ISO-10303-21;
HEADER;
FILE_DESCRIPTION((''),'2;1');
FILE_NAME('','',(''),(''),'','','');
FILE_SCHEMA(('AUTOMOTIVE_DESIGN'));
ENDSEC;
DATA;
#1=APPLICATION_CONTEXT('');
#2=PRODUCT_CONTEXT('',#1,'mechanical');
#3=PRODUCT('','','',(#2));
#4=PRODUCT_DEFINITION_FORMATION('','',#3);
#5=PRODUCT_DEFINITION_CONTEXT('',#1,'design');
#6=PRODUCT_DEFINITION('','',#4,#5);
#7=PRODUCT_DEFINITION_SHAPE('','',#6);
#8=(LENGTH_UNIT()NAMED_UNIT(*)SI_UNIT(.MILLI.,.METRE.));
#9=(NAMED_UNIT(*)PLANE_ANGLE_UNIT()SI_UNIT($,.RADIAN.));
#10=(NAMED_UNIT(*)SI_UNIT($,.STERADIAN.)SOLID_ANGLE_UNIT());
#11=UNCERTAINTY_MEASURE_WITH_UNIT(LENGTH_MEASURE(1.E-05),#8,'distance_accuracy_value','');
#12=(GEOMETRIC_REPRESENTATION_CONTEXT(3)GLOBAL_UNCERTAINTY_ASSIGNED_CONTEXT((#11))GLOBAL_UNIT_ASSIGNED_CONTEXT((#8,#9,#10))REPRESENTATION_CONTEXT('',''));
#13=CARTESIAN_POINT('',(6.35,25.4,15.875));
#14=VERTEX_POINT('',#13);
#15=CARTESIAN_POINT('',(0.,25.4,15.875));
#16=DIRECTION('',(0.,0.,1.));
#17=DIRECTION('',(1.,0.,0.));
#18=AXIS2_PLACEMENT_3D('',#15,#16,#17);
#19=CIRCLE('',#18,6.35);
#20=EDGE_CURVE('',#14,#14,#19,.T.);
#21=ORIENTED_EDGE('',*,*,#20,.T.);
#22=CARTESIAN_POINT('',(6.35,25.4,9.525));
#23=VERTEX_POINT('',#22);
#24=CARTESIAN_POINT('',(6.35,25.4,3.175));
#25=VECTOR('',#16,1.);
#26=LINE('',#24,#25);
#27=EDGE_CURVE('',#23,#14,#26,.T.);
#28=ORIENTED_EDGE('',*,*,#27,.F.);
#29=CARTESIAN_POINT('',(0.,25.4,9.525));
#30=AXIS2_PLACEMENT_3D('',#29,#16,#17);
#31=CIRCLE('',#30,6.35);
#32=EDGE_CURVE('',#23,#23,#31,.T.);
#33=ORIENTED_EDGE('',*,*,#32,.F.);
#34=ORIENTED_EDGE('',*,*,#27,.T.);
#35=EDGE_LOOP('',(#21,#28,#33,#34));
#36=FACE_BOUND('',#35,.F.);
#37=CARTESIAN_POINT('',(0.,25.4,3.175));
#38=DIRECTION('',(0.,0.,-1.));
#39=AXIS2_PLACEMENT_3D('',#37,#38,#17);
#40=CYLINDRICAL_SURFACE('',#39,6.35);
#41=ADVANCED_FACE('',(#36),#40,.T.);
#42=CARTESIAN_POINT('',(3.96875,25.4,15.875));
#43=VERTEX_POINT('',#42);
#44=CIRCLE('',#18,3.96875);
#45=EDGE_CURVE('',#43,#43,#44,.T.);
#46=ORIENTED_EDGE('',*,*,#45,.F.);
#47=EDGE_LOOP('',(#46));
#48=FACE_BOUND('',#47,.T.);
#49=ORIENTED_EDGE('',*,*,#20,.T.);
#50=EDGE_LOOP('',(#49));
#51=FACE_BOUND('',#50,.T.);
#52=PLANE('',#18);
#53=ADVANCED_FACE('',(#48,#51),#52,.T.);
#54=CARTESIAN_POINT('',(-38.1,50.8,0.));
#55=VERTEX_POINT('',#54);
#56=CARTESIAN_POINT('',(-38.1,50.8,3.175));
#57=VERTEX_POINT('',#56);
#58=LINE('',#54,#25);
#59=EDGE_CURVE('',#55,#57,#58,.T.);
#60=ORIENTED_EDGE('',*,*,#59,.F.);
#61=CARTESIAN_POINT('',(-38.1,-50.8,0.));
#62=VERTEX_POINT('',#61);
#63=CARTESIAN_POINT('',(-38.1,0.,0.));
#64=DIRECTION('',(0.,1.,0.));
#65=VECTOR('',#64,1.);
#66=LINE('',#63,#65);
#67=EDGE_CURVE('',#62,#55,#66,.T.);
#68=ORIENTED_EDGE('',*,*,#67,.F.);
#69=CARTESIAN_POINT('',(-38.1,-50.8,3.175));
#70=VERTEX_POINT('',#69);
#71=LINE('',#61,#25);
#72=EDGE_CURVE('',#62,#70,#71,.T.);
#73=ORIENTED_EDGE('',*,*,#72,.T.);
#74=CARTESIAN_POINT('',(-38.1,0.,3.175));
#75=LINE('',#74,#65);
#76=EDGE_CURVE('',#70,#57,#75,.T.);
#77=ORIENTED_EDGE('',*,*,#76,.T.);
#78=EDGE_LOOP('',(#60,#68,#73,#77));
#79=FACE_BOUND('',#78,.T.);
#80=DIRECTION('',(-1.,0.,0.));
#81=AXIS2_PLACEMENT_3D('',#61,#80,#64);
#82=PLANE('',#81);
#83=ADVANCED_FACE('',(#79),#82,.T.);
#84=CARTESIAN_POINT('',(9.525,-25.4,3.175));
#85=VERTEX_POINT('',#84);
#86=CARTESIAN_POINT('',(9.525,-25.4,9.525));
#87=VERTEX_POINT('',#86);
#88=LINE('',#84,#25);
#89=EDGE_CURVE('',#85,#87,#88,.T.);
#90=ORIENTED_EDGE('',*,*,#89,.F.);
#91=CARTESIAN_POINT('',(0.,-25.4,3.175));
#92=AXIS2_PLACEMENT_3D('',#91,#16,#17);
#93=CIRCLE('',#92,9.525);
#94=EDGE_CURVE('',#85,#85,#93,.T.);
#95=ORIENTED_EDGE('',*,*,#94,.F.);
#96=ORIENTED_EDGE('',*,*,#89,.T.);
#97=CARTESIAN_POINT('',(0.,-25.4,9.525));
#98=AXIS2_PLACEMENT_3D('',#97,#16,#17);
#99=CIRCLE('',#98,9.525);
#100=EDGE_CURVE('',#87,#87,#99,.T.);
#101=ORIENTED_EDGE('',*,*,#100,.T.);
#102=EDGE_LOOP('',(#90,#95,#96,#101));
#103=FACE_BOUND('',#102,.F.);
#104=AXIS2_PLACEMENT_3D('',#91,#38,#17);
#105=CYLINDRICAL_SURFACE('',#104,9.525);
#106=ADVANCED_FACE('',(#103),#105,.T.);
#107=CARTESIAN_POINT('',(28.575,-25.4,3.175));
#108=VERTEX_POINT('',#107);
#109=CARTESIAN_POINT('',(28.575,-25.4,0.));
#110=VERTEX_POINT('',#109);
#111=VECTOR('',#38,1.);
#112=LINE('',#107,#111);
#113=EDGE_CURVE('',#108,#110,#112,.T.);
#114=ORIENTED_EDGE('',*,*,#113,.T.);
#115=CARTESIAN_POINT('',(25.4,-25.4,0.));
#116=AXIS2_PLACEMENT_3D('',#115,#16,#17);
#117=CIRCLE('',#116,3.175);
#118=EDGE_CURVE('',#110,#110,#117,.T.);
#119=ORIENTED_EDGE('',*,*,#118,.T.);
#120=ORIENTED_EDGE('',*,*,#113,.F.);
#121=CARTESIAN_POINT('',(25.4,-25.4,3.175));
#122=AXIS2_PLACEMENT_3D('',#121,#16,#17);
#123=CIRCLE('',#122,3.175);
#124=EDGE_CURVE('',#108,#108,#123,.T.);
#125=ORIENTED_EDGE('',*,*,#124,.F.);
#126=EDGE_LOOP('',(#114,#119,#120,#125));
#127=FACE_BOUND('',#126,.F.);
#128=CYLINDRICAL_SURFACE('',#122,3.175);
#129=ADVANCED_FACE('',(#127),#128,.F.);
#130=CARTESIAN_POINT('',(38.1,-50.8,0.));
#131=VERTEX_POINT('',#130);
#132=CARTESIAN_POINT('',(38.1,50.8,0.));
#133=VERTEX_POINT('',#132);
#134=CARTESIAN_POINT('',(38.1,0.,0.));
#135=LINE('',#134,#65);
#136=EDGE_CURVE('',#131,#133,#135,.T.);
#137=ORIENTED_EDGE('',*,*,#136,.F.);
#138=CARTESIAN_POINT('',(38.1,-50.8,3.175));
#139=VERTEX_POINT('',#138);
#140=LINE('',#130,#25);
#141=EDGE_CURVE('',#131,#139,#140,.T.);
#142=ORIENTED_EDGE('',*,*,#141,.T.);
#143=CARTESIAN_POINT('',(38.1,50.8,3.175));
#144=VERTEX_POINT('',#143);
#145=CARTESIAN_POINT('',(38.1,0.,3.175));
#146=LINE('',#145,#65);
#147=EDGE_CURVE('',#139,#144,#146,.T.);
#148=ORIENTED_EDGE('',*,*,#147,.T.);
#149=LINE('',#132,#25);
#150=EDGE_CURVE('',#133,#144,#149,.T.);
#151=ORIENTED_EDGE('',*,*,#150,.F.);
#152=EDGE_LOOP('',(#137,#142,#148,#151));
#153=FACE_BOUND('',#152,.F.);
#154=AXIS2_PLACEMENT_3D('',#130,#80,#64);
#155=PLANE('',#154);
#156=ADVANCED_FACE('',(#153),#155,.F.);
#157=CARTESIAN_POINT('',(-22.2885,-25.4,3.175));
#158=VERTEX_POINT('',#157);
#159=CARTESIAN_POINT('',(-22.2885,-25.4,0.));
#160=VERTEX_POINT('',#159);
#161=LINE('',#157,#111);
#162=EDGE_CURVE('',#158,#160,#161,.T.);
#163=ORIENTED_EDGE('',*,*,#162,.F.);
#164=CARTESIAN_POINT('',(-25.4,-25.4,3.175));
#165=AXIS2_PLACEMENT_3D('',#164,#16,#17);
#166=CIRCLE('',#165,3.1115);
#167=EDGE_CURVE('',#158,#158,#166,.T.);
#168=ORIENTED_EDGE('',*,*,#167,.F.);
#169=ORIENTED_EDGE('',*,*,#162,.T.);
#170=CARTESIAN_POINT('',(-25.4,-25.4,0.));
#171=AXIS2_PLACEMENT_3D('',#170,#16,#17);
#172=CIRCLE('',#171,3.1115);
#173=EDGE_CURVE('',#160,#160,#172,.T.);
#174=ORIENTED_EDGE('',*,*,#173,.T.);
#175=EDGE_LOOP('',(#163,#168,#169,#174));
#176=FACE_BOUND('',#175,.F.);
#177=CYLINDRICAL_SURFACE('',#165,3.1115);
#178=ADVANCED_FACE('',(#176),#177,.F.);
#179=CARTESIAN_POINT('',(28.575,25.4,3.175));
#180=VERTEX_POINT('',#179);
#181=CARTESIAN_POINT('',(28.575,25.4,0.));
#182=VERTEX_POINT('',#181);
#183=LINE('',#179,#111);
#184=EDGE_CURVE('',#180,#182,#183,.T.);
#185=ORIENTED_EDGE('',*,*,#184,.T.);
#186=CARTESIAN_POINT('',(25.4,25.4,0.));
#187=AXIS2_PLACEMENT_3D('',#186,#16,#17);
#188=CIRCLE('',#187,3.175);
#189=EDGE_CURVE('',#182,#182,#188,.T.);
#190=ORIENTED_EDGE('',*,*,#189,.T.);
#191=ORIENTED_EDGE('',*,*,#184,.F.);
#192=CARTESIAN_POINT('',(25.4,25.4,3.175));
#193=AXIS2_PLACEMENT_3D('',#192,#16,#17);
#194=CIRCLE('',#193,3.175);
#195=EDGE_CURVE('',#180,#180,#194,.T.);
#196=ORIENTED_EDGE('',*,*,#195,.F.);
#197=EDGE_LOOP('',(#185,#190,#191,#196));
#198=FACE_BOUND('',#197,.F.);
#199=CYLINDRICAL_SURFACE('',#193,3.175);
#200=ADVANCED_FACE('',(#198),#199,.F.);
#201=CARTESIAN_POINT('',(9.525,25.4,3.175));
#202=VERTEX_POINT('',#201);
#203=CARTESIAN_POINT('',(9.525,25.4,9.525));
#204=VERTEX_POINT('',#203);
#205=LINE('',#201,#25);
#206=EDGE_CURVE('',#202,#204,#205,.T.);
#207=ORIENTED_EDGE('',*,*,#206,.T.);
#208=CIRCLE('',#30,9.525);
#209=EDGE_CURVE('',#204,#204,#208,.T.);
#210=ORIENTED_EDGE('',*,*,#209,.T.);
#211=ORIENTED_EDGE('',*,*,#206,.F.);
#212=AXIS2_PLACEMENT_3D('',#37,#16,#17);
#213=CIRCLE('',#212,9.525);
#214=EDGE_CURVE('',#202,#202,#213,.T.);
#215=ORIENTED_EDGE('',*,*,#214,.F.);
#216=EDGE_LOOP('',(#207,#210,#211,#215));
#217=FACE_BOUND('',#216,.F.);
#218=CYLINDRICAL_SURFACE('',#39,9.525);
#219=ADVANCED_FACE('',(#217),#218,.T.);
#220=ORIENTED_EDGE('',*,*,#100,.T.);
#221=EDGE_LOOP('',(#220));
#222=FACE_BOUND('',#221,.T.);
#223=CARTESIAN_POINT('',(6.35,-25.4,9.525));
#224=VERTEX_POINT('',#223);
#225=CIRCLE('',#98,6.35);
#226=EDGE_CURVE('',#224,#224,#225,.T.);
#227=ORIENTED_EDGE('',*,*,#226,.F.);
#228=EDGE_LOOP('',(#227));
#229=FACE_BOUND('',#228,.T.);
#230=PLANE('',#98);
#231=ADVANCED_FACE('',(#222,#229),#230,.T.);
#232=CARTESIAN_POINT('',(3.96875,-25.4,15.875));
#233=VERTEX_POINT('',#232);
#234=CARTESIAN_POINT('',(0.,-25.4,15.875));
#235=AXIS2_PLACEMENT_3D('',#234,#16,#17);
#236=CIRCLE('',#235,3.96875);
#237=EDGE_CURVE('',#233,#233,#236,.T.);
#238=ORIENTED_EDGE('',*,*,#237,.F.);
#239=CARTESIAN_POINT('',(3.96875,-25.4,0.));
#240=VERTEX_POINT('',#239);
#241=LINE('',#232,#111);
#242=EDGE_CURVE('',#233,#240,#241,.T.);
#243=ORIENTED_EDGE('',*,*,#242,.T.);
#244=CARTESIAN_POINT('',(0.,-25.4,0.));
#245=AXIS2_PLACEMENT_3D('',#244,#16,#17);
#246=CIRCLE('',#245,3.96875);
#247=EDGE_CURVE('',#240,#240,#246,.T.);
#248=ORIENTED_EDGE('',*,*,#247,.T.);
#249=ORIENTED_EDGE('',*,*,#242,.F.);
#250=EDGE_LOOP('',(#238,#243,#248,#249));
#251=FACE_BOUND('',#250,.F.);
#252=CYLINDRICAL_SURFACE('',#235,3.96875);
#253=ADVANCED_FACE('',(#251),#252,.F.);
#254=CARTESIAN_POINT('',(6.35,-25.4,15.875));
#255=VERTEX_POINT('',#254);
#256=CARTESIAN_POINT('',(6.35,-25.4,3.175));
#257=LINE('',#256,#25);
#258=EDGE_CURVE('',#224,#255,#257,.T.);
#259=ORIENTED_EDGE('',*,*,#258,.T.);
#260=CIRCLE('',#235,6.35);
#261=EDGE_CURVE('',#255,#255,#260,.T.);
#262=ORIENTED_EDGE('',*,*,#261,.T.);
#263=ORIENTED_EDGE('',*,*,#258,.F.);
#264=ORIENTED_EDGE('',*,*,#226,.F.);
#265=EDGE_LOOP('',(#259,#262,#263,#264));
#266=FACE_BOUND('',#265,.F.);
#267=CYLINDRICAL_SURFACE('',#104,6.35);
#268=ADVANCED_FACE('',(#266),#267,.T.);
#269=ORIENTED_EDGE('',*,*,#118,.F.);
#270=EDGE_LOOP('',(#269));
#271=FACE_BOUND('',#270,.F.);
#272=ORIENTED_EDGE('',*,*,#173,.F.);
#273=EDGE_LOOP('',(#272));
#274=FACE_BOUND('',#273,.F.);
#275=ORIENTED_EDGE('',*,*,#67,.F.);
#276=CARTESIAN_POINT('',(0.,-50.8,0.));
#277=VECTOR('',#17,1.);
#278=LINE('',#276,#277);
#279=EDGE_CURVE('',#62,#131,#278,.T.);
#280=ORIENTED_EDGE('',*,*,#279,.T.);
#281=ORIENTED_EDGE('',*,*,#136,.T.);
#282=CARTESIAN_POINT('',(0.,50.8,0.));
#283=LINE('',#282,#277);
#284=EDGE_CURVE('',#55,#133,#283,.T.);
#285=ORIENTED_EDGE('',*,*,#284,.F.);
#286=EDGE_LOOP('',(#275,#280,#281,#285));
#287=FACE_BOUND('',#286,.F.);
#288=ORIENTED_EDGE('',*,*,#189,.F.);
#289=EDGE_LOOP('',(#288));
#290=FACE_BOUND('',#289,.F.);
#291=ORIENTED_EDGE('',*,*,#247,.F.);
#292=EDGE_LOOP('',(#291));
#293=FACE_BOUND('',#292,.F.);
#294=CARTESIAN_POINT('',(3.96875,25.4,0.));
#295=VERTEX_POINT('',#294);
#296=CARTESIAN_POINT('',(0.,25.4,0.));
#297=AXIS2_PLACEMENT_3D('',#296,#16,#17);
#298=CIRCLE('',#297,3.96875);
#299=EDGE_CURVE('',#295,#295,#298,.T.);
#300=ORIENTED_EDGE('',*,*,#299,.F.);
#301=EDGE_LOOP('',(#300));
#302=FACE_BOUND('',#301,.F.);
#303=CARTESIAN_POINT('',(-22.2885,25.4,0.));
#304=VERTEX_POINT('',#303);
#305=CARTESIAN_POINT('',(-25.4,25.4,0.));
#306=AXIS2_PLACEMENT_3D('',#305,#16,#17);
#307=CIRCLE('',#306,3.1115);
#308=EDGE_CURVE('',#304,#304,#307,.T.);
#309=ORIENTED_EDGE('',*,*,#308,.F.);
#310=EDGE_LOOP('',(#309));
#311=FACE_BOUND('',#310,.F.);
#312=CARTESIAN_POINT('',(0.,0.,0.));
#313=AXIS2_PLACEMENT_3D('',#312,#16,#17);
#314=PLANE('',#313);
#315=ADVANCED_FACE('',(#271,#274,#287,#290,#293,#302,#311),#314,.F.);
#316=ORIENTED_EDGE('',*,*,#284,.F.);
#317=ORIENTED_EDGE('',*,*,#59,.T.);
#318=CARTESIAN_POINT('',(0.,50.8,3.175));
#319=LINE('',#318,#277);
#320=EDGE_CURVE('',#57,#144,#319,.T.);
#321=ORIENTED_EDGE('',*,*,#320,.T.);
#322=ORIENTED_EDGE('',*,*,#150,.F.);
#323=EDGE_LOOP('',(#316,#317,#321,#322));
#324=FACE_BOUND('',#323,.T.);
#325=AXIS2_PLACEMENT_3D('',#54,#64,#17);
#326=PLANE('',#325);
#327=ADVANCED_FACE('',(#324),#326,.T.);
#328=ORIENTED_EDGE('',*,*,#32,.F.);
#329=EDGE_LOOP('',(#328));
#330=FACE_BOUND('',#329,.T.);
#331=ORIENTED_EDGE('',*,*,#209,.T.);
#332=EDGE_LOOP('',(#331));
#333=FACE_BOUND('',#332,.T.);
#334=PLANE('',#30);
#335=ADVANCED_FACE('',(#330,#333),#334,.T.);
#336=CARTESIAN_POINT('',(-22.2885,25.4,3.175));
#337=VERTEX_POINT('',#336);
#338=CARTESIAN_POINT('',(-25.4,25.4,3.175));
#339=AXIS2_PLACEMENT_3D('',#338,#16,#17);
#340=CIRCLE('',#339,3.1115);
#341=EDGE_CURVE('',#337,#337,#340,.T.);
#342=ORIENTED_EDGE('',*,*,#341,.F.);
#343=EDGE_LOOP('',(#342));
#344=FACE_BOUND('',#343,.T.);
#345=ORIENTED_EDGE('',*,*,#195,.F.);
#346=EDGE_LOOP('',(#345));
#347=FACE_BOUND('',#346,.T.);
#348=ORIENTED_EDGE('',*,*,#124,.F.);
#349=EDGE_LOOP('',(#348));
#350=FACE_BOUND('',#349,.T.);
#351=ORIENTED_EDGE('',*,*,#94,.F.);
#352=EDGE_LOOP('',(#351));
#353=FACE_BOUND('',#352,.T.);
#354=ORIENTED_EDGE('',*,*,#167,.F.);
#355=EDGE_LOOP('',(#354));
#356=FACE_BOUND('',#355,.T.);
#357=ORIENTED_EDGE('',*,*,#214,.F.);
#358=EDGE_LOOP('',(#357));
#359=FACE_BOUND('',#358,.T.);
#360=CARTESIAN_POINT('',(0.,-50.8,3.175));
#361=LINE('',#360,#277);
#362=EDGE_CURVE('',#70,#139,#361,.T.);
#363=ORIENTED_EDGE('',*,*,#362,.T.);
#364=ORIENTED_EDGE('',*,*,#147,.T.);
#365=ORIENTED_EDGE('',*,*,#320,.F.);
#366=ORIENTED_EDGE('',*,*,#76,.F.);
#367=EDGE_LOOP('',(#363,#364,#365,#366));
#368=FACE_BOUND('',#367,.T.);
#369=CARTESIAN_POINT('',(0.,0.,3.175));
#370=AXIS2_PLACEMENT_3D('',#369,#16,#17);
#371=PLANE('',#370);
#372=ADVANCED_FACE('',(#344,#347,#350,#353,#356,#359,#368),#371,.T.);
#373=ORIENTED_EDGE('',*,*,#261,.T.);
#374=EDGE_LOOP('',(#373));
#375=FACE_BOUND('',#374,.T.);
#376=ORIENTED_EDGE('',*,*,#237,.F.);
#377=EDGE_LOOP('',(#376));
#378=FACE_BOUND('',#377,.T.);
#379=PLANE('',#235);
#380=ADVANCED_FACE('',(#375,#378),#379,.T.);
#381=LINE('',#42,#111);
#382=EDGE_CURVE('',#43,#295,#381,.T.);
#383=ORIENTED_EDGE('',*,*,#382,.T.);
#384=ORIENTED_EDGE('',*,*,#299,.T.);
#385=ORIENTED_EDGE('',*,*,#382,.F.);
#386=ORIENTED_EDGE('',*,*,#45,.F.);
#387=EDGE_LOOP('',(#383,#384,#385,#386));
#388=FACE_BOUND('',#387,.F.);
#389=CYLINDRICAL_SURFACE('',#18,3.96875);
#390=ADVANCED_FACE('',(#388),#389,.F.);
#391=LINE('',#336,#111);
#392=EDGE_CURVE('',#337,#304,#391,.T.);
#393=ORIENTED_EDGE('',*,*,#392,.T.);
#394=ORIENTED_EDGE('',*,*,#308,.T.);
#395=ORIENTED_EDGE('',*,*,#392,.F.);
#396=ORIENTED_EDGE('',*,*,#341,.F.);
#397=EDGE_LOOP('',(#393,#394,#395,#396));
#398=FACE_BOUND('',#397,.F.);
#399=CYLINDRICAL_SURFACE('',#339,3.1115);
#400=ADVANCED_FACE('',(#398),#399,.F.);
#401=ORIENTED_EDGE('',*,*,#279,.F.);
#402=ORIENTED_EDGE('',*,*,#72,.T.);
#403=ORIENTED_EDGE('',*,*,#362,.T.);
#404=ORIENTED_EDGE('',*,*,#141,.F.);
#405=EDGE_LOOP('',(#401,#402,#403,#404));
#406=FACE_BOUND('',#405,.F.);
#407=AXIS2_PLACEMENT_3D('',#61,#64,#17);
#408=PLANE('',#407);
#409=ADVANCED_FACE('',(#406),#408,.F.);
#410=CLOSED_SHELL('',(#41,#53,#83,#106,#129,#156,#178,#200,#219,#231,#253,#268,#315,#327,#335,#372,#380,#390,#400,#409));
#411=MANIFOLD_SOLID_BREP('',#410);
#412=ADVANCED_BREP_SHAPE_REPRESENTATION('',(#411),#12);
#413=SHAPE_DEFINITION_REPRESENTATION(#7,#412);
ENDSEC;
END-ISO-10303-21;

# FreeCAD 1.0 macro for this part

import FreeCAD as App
import Part
import Sketcher
Q = App.Units.Quantity

doc = App.newDocument("Part")
params = doc.addObject("Spreadsheet::Sheet", "Params")
for row, (alias, value) in enumerate([
    ("sketch1_width", "3 in"),
    ("sketch1_height", "4 in"),
    ("pad1_length", "0.125 in"),
    ("sketch2_diameter", "0.5 in"),
    ("pad2_length", "0.5 in"),
    ("sketch3_diameter", "0.3125 in"),
    ("pocket1_length", "1.5 in"),
    ("sketch4_diameter", "0.25 in"),
    ("sketch4_diameter2", "0.245 in"),
    ("pocket2_length", "1 in"),
    ("sketch5_diameter", "0.5 in"),
    ("sketch5_diameter2", "0.75 in"),
    ("pad3_length", "0.25 in"),
], start=1):
    params.set(f"A{row}", alias)
    params.set(f"B{row}", "=" + value)
    params.setAlias(f"B{row}", alias)

body = doc.addObject("PartDesign::Body", "Body")

sketch1 = body.newObject("Sketcher::SketchObject", "Sketch")
sketch1.AttachmentSupport = (doc.getObject("XY_Plane"), [""])
sketch1.MapMode = "FlatFace"
sketch1.addGeometry(Part.LineSegment(App.Vector(-38.1, 50.8, 0), App.Vector(-38.1, -50.8, 0)), False)
sketch1.addGeometry(Part.LineSegment(App.Vector(-38.1, -50.8, 0), App.Vector(38.1, -50.8, 0)), False)
sketch1.addGeometry(Part.LineSegment(App.Vector(38.1, -50.8, 0), App.Vector(38.1, 50.8, 0)), False)
sketch1.addGeometry(Part.LineSegment(App.Vector(38.1, 50.8, 0), App.Vector(-38.1, 50.8, 0)), False)
sketch1.addConstraint(Sketcher.Constraint("Coincident", 0, 2, 1, 1))
sketch1.addConstraint(Sketcher.Constraint("Coincident", 1, 2, 2, 1))
sketch1.addConstraint(Sketcher.Constraint("Coincident", 2, 2, 3, 1))
sketch1.addConstraint(Sketcher.Constraint("Coincident", 3, 2, 0, 1))
sketch1.addConstraint(Sketcher.Constraint("Vertical", 0))
sketch1.addConstraint(Sketcher.Constraint("Horizontal", 1))
sketch1.addConstraint(Sketcher.Constraint("Vertical", 2))
sketch1.addConstraint(Sketcher.Constraint("Horizontal", 3))
sketch1.addConstraint(Sketcher.Constraint("Symmetric", 0, 2, 2, 2, -1, 1))
sketch1.addConstraint(Sketcher.Constraint("DistanceX", 1, 1, 1, 2, Q("3 in")))
sketch1.addConstraint(Sketcher.Constraint("DistanceY", 0, 2, 0, 1, Q("4 in")))
sketch1.setExpression("Constraints[9]", "Params.sketch1_width")
sketch1.setExpression("Constraints[10]", "Params.sketch1_height")
pad1 = body.newObject("PartDesign::Pad", "Pad")
pad1.Profile = sketch1
pad1.setExpression("Length", "Params.pad1_length")

sketch2 = body.newObject("Sketcher::SketchObject", "Sketch001")
sketch2.AttachmentSupport = (doc.getObject("XY_Plane"), [""])
sketch2.MapMode = "FlatFace"
sketch2.AttachmentOffset = App.Placement(App.Vector(0, 0, 0.125 * 25.4), App.Rotation())
sketch2.addGeometry(Part.Circle(App.Vector(0, 25.4, 0), App.Vector(0, 0, 1), 6.35), False)
sketch2.addGeometry(Part.Circle(App.Vector(0, -25.4, 0), App.Vector(0, 0, 1), 6.35), False)
sketch2.addConstraint(Sketcher.Constraint("Equal", 0, 1))
sketch2.addConstraint(Sketcher.Constraint("Symmetric", 0, 3, 1, 3, -1, 1))
sketch2.addConstraint(Sketcher.Constraint("PointOnObject", 0, 3, -2))
sketch2.addConstraint(Sketcher.Constraint("Diameter", 0, Q("0.5 in")))
sketch2.addConstraint(Sketcher.Constraint("DistanceY", -1, 1, 0, 3, Q("1 in")))
sketch2.setExpression("Constraints[3]", "Params.sketch2_diameter")
pad2 = body.newObject("PartDesign::Pad", "Pad001")
pad2.Profile = sketch2
pad2.setExpression("Length", "Params.pad2_length")

sketch3 = body.newObject("Sketcher::SketchObject", "Sketch002")
sketch3.AttachmentSupport = (doc.getObject("XY_Plane"), [""])
sketch3.MapMode = "FlatFace"
sketch3.AttachmentOffset = App.Placement(App.Vector(0, 0, 0.625 * 25.4), App.Rotation())
sketch3.addGeometry(Part.Circle(App.Vector(0, 25.4, 0), App.Vector(0, 0, 1), 3.96875), False)
sketch3.addGeometry(Part.Circle(App.Vector(0, -25.4, 0), App.Vector(0, 0, 1), 3.96875), False)
sketch3.addConstraint(Sketcher.Constraint("Equal", 0, 1))
sketch3.addConstraint(Sketcher.Constraint("Symmetric", 0, 3, 1, 3, -1, 1))
sketch3.addConstraint(Sketcher.Constraint("PointOnObject", 0, 3, -2))
sketch3.addConstraint(Sketcher.Constraint("Diameter", 0, Q("0.3125 in")))
sketch3.addConstraint(Sketcher.Constraint("DistanceY", -1, 1, 0, 3, Q("1 in")))
sketch3.setExpression("Constraints[3]", "Params.sketch3_diameter")
pocket1 = body.newObject("PartDesign::Pocket", "Pocket")
pocket1.Profile = sketch3
pocket1.setExpression("Length", "Params.pocket1_length")

sketch4 = body.newObject("Sketcher::SketchObject", "Sketch003")
sketch4.AttachmentSupport = (doc.getObject("XY_Plane"), [""])
sketch4.MapMode = "FlatFace"
sketch4.AttachmentOffset = App.Placement(App.Vector(0, 0, 0.125 * 25.4), App.Rotation())
sketch4.addGeometry(Part.Circle(App.Vector(25.4, 25.4, 0), App.Vector(0, 0, 1), 3.175), False)
sketch4.addGeometry(Part.Circle(App.Vector(25.4, -25.4, 0), App.Vector(0, 0, 1), 3.175), False)
sketch4.addGeometry(Part.Circle(App.Vector(-25.4, 25.4, 0), App.Vector(0, 0, 1), 3.1115), False)
sketch4.addGeometry(Part.Circle(App.Vector(-25.4, -25.4, 0), App.Vector(0, 0, 1), 3.1115), False)
sketch4.addConstraint(Sketcher.Constraint("Equal", 0, 1))
sketch4.addConstraint(Sketcher.Constraint("Equal", 2, 3))
sketch4.addConstraint(Sketcher.Constraint("Symmetric", 1, 3, 2, 3, -1, 1))
sketch4.addConstraint(Sketcher.Constraint("Symmetric", 0, 3, 3, 3, -1, 1))
sketch4.addConstraint(Sketcher.Constraint("Symmetric", 0, 3, 2, 3, -2))
sketch4.addConstraint(Sketcher.Constraint("Diameter", 0, Q("0.25 in")))
sketch4.addConstraint(Sketcher.Constraint("Diameter", 2, Q("0.245 in")))
sketch4.addConstraint(Sketcher.Constraint("DistanceX", -1, 1, 0, 3, Q("1 in")))
sketch4.addConstraint(Sketcher.Constraint("DistanceY", -1, 1, 0, 3, Q("1 in")))
sketch4.setExpression("Constraints[5]", "Params.sketch4_diameter")
sketch4.setExpression("Constraints[6]", "Params.sketch4_diameter2")
pocket2 = body.newObject("PartDesign::Pocket", "Pocket001")
pocket2.Profile = sketch4
pocket2.setExpression("Length", "Params.pocket2_length")

sketch5 = body.newObject("Sketcher::SketchObject", "Sketch004")
sketch5.AttachmentSupport = (doc.getObject("XY_Plane"), [""])
sketch5.MapMode = "FlatFace"
sketch5.AttachmentOffset = App.Placement(App.Vector(0, 0, 0.125 * 25.4), App.Rotation())
sketch5.addGeometry(Part.Circle(App.Vector(0, 25.4, 0), App.Vector(0, 0, 1), 9.525), False)
sketch5.addGeometry(Part.Circle(App.Vector(0, 25.4, 0), App.Vector(0, 0, 1), 6.35), False)
sketch5.addGeometry(Part.Circle(App.Vector(0, -25.4, 0), App.Vector(0, 0, 1), 9.525), False)
sketch5.addGeometry(Part.Circle(App.Vector(0, -25.4, 0), App.Vector(0, 0, 1), 6.35), False)
sketch5.addConstraint(Sketcher.Constraint("Coincident", 1, 3, 0, 3))
sketch5.addConstraint(Sketcher.Constraint("Coincident", 3, 3, 2, 3))
sketch5.addConstraint(Sketcher.Constraint("Equal", 0, 2))
sketch5.addConstraint(Sketcher.Constraint("Equal", 1, 3))
sketch5.addConstraint(Sketcher.Constraint("Symmetric", 0, 3, 2, 3, -1, 1))
sketch5.addConstraint(Sketcher.Constraint("PointOnObject", 0, 3, -2))
sketch5.addConstraint(Sketcher.Constraint("Diameter", 1, Q("0.5 in")))
sketch5.addConstraint(Sketcher.Constraint("Diameter", 0, Q("0.75 in")))
sketch5.addConstraint(Sketcher.Constraint("DistanceY", -1, 1, 0, 3, Q("1 in")))
sketch5.setExpression("Constraints[6]", "Params.sketch5_diameter")
sketch5.setExpression("Constraints[7]", "Params.sketch5_diameter2")
pad3 = body.newObject("PartDesign::Pad", "Pad002")
pad3.Profile = sketch5
pad3.setExpression("Length", "Params.pad3_length")

doc.recompute()
